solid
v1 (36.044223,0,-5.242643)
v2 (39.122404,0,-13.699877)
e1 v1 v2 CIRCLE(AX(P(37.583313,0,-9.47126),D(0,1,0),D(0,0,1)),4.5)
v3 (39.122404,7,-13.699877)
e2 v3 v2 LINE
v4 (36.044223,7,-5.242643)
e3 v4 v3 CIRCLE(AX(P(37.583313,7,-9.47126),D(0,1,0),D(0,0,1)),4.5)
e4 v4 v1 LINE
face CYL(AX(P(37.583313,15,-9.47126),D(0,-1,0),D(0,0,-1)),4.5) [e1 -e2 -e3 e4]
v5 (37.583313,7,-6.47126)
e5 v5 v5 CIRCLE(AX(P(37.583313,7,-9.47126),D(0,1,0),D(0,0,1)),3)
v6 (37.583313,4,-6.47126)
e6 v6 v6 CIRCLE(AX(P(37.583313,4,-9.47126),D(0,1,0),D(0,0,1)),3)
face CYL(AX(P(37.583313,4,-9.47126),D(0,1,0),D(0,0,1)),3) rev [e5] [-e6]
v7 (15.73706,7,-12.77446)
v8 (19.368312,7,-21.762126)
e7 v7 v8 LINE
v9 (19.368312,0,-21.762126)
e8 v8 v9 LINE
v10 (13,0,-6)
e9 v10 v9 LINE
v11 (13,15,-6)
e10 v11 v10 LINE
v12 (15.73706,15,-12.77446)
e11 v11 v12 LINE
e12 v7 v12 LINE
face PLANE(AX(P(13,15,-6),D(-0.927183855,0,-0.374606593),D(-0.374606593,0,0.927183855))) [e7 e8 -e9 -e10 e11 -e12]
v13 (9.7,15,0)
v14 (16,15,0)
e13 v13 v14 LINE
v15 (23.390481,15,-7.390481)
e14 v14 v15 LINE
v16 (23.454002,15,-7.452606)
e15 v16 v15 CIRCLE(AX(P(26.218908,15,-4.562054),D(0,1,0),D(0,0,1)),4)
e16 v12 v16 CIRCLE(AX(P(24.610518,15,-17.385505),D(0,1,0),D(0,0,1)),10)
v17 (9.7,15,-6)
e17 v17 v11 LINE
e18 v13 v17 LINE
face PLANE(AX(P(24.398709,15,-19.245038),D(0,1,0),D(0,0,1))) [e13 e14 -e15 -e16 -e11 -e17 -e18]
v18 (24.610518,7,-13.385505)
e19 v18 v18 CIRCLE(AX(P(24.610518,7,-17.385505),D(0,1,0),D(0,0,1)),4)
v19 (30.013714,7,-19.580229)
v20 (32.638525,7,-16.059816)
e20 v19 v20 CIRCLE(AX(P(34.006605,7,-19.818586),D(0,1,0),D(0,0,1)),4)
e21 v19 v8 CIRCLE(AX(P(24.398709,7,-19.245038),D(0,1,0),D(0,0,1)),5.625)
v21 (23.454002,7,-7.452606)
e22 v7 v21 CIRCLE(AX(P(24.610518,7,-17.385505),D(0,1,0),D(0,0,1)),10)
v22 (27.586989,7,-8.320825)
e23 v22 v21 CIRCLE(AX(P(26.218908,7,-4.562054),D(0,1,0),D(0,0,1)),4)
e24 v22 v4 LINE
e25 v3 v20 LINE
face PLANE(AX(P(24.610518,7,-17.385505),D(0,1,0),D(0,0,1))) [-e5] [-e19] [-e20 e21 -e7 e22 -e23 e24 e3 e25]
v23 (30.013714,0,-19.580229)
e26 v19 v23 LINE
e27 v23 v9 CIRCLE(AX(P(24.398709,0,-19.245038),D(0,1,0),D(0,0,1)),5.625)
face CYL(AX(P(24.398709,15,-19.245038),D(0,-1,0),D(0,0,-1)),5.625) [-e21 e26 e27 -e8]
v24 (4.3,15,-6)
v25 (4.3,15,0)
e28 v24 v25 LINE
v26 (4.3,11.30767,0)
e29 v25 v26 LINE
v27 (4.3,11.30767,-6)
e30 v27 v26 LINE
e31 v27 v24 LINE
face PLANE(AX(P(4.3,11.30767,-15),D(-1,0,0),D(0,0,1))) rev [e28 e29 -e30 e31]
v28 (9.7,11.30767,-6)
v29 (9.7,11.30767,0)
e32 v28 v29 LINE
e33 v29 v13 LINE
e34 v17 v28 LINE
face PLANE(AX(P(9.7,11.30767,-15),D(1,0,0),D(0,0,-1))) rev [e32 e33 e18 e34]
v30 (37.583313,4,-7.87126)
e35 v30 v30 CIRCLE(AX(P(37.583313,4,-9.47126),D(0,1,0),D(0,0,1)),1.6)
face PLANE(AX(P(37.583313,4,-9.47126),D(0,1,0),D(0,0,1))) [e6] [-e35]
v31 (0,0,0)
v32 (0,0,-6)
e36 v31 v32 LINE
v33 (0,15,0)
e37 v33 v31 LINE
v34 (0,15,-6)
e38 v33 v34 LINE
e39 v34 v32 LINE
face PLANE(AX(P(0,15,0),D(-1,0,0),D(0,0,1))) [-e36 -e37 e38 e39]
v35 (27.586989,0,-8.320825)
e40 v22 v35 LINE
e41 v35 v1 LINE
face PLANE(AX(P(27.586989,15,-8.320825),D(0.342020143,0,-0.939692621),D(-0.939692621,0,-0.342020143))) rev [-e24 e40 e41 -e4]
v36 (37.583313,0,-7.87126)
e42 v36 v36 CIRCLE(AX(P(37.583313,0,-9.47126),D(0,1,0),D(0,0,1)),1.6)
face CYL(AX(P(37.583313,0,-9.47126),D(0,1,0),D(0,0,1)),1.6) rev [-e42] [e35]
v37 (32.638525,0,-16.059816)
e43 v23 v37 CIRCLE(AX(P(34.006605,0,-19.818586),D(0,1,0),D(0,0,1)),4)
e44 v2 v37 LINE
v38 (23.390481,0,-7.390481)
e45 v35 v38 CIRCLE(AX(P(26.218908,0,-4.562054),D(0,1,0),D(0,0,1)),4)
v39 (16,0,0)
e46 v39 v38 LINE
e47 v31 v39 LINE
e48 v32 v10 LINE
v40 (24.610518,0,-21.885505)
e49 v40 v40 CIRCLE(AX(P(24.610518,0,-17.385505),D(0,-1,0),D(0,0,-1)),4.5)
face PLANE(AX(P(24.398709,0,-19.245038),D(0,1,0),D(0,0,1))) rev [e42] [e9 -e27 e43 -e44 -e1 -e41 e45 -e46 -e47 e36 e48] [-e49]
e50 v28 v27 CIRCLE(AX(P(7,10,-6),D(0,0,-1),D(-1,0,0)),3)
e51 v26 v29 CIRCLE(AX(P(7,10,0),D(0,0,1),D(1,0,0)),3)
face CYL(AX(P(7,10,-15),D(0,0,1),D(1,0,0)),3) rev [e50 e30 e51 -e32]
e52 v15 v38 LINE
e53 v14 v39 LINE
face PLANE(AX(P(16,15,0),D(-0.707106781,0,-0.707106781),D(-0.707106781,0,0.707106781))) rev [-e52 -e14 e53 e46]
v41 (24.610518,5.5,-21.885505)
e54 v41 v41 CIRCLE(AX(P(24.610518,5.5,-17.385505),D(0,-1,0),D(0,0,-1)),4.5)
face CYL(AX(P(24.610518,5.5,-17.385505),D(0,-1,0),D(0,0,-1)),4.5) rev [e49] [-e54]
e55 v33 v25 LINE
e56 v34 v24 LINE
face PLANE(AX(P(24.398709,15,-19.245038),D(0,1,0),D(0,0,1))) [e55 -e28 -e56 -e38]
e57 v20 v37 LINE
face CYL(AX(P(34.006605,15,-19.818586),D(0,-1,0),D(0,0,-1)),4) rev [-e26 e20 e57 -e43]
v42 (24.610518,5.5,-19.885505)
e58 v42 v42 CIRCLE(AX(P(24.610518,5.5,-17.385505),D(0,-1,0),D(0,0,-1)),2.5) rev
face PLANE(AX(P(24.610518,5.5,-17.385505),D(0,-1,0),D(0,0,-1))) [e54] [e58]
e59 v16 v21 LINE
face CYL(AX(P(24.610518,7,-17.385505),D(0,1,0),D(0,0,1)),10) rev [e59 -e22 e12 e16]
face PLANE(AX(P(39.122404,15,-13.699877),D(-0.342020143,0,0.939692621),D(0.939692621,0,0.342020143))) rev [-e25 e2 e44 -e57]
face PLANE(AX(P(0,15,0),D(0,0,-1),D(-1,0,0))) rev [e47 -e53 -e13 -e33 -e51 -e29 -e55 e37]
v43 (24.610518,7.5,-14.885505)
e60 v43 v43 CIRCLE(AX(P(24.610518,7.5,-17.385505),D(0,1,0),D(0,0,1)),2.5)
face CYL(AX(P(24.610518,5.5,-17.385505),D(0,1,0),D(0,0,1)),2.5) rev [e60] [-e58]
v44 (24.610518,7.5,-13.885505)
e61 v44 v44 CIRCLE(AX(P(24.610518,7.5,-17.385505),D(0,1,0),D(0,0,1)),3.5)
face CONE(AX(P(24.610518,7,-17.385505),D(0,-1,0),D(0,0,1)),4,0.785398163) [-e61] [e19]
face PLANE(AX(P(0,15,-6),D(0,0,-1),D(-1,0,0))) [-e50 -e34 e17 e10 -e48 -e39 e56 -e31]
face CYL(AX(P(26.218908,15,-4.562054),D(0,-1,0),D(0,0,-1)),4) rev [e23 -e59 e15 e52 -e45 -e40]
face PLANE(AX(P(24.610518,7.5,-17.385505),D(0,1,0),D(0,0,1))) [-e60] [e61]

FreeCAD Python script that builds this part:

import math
import FreeCAD as App
import Part
import Sketcher
Q = App.Units.Quantity

doc = App.newDocument("Part")
body = doc.addObject("PartDesign::Body", "Body")

# Sketch on XZ plane
sketch1 = body.newObject("Sketcher::SketchObject", "Sketch")
sketch1.AttachmentSupport = (doc.getObject("XZ_Plane"), [""])
sketch1.MapMode = "FlatFace"
sketch1.addGeometry([
    Part.LineSegment(App.Vector(0, 0, 0), App.Vector(16, 0, 0)),  # 0
    Part.LineSegment(App.Vector(16, 0, 0), App.Vector(23.4, -7.4, 0)),  # 1
    Part.ArcOfCircle(Part.Circle(App.Vector(26.2, -4.6, 0), App.Vector(0, 0, 1), 4), math.radians(-135), math.radians(-70)),  # 2
    Part.LineSegment(App.Vector(27.6, -8.3, 0), App.Vector(36, -5.2, 0)),  # 3
    Part.ArcOfCircle(Part.Circle(App.Vector(37.6, -9.5, 0), App.Vector(0, 0, 1), 4.5), math.radians(-70), math.radians(110)),  # 4
    Part.LineSegment(App.Vector(39.1, -13.7, 0), App.Vector(32.6, -16.1, 0)),  # 5
    Part.ArcOfCircle(Part.Circle(App.Vector(34, -19.8, 0), App.Vector(0, 0, 1), 4), math.radians(110), math.radians(177)),  # 6
    Part.ArcOfCircle(Part.Circle(App.Vector(24.4, -19.2, 0), App.Vector(0, 0, 1), 5.6), math.radians(-153), math.radians(-3)),  # 7
    Part.LineSegment(App.Vector(19.4, -21.8, 0), App.Vector(13, -6, 0)),  # 8
    Part.LineSegment(App.Vector(13, -6, 0), App.Vector(0, -6, 0)),  # 9
    Part.LineSegment(App.Vector(0, -6, 0), App.Vector(0, 0, 0)),  # 10
], False)
sketch1.addConstraint([
    Sketcher.Constraint("Coincident", 0, 2, 1, 1),
    Sketcher.Constraint("Tangent", 1, 2, 2, 1),
    Sketcher.Constraint("Tangent", 2, 2, 3, 1),
    Sketcher.Constraint("Tangent", 3, 2, 4, 2),
    Sketcher.Constraint("Tangent", 4, 1, 5, 1),
    Sketcher.Constraint("Tangent", 5, 2, 6, 1),
    Sketcher.Constraint("Tangent", 6, 2, 7, 2),
    Sketcher.Constraint("Coincident", 7, 1, 8, 1),
    Sketcher.Constraint("Coincident", 8, 2, 9, 1),
    Sketcher.Constraint("Coincident", 9, 2, 10, 1),
    Sketcher.Constraint("Coincident", 10, 2, 0, 1),
    Sketcher.Constraint("Horizontal", 0),
    Sketcher.Constraint("Horizontal", 9),
    Sketcher.Constraint("Vertical", 10),
    Sketcher.Constraint("Coincident", 10, 2, -1, 1),
    Sketcher.Constraint("Equal", 2, 6),
    Sketcher.Constraint("Parallel", 3, 5),
    Sketcher.Constraint("Radius", 2, Q("4 mm")),
    Sketcher.Constraint("Radius", 4, Q("4.5 mm")),
    Sketcher.Constraint("DistanceX", 0, 1, 0, 2, Q("16 mm")),
    Sketcher.Constraint("DistanceX", 9, 2, 9, 1, Q("13 mm")),
    Sketcher.Constraint("DistanceY", 10, 1, 10, 2, Q("6 mm")),
    Sketcher.Constraint("Angle", 1, Q("-45 deg")),
    Sketcher.Constraint("Angle", 3, Q("20 deg")),
    Sketcher.Constraint("Angle", 8, Q("112 deg")),
    Sketcher.Constraint("Distance", 3, Q("9 mm")),
    Sketcher.Constraint("Distance", 8, Q("17 mm")),
    Sketcher.Constraint("Radius", 7, Q("5.625 mm")),
    Sketcher.Constraint("Distance", 5, Q("6.9 mm")),
    Sketcher.Constraint("DistanceX", 7, 3, 2, 3, Q("1.820199 mm")),
])
pad1 = body.newObject("PartDesign::Pad", "Pad")
pad1.Profile = sketch1
pad1.Length = 15
pad1.Reversed = True

# Sketch on XZ plane
sketch2 = body.newObject("Sketcher::SketchObject", "Sketch001")
sketch2.AttachmentSupport = (doc.getObject("XZ_Plane"), [""])
sketch2.MapMode = "FlatFace"
sketch2.AttachmentOffset = App.Placement(App.Vector(0, 0, -15), App.Rotation())
sketch2.addGeometry([
    Part.LineSegment(App.Vector(28, -8, 0), App.Vector(40, -2, 0)),
    Part.LineSegment(App.Vector(40, -2, 0), App.Vector(45, -13, 0)),
    Part.LineSegment(App.Vector(45, -13, 0), App.Vector(35, -18, 0)),
    Part.ArcOfCircle(Part.Circle(App.Vector(25, -17, 0), App.Vector(0, 0, 1), 10), math.radians(73), math.radians(356)),
], False)
sketch2.addConstraint([
    Sketcher.Constraint("Coincident", 0, 2, 1, 1),
    Sketcher.Constraint("Coincident", 1, 2, 2, 1),
    Sketcher.Constraint("Coincident", 2, 2, 3, 2),
    Sketcher.Constraint("Coincident", 3, 1, 0, 1),
    Sketcher.Constraint("Perpendicular", 0, 1),
    Sketcher.Constraint("Perpendicular", 1, 2),
    Sketcher.Constraint("Radius", 3, Q("10 mm")),
    Sketcher.Constraint("Distance", 2, Q("11.670922 mm")),
    Sketcher.Constraint("DistanceX", -1, 1, 3, 3, Q("24.610518 mm")),
    Sketcher.Constraint("DistanceX", -1, 1, 1, 2, Q("45.039561 mm")),
    Sketcher.Constraint("DistanceY", 1, 2, -1, 1, Q("12.855889 mm")),
    Sketcher.Constraint("DistanceY", 2, 2, -1, 1, Q("18.050442 mm")),
    Sketcher.Constraint("DistanceY", 3, 3, 0, 2, Q("15.54761 mm")),
])
pocket1 = body.newObject("PartDesign::Pocket", "Pocket")
pocket1.Profile = sketch2
pocket1.Length = 8
pocket1.Reversed = True

# Sketch on XZ plane
sketch3 = body.newObject("Sketcher::SketchObject", "Sketch002")
sketch3.AttachmentSupport = (doc.getObject("XZ_Plane"), [""])
sketch3.MapMode = "FlatFace"
sketch3.AttachmentOffset = App.Placement(App.Vector(0, 0, -7), App.Rotation())
sketch3.addGeometry(Part.Circle(App.Vector(24.6, -17.4, 0), App.Vector(0, 0, 1), 4), False)
sketch3.addConstraint([
    Sketcher.Constraint("Diameter", 0, Q("8 mm")),
    Sketcher.Constraint("DistanceX", -1, 1, 0, 3, Q("24.610518 mm")),
    Sketcher.Constraint("DistanceY", 0, 3, -1, 1, Q("17.385505 mm")),
])
pad2 = body.newObject("PartDesign::Pad", "Pad001")
pad2.Profile = sketch3
pad2.Length = 0.5
pad2.Reversed = True
pad2.TaperAngle = -45

# Sketch on XZ plane
sketch4 = body.newObject("Sketcher::SketchObject", "Sketch003")
sketch4.AttachmentSupport = (doc.getObject("XZ_Plane"), [""])
sketch4.MapMode = "FlatFace"
sketch4.AttachmentOffset = App.Placement(App.Vector(0, 0, -7.5), App.Rotation())
sketch4.addGeometry(Part.Circle(App.Vector(24.6, -17.4, 0), App.Vector(0, 0, 1), 2.5), False)
sketch4.addConstraint([
    Sketcher.Constraint("Diameter", 0, Q("5 mm")),
    Sketcher.Constraint("DistanceX", -1, 1, 0, 3, Q("24.610518 mm")),
    Sketcher.Constraint("DistanceY", 0, 3, -1, 1, Q("17.385505 mm")),
])
pocket2 = body.newObject("PartDesign::Pocket", "Pocket001")
pocket2.Profile = sketch4
pocket2.Length = 2
pocket2.Reversed = True

# Sketch on XZ plane
sketch5 = body.newObject("Sketcher::SketchObject", "Sketch004")
sketch5.AttachmentSupport = (doc.getObject("XZ_Plane"), [""])
sketch5.MapMode = "FlatFace"
sketch5.addGeometry(Part.Circle(App.Vector(24.6, -17.4, 0), App.Vector(0, 0, 1), 4.5), False)
sketch5.addConstraint([
    Sketcher.Constraint("Diameter", 0, Q("9 mm")),
    Sketcher.Constraint("DistanceX", -1, 1, 0, 3, Q("24.610518 mm")),
    Sketcher.Constraint("DistanceY", 0, 3, -1, 1, Q("17.385505 mm")),
])
pocket3 = body.newObject("PartDesign::Pocket", "Pocket002")
pocket3.Profile = sketch5
pocket3.Length = 5.5

# Sketch on XY plane
sketch6 = body.newObject("Sketcher::SketchObject", "Sketch005")
sketch6.AttachmentSupport = (doc.getObject("XY_Plane"), [""])
sketch6.MapMode = "FlatFace"
sketch6.addGeometry([
    Part.LineSegment(App.Vector(4.3, 15, 0), App.Vector(4.3, 11.3, 0)),
    Part.ArcOfCircle(Part.Circle(App.Vector(7, 10, 0), App.Vector(0, 0, 1), 3), math.radians(154), math.radians(386)),
    Part.LineSegment(App.Vector(9.7, 11.3, 0), App.Vector(9.7, 15, 0)),
    Part.LineSegment(App.Vector(9.7, 15, 0), App.Vector(4.3, 15, 0)),
], False)
sketch6.addConstraint([
    Sketcher.Constraint("Coincident", 0, 2, 1, 1),
    Sketcher.Constraint("Coincident", 1, 2, 2, 1),
    Sketcher.Constraint("Coincident", 2, 2, 3, 1),
    Sketcher.Constraint("Coincident", 3, 2, 0, 1),
    Sketcher.Constraint("Vertical", 0),
    Sketcher.Constraint("Vertical", 2),
    Sketcher.Constraint("Horizontal", 3),
    Sketcher.Constraint("Horizontal", 0, 2, 1, 2),
    Sketcher.Constraint("Radius", 1, Q("3 mm")),
    Sketcher.Constraint("DistanceX", 3, 2, 3, 1, Q("5.4 mm")),
    Sketcher.Constraint("DistanceX", -1, 1, 1, 3, Q("7 mm")),
    Sketcher.Constraint("DistanceY", -1, 1, 1, 3, Q("10 mm")),
    Sketcher.Constraint("DistanceY", -1, 1, 2, 2, Q("15 mm")),
])
pocket4 = body.newObject("PartDesign::Pocket", "Pocket003")
pocket4.Profile = sketch6
pocket4.Length = 15

# Sketch on XZ plane
sketch7 = body.newObject("Sketcher::SketchObject", "Sketch006")
sketch7.AttachmentSupport = (doc.getObject("XZ_Plane"), [""])
sketch7.MapMode = "FlatFace"
sketch7.AttachmentOffset = App.Placement(App.Vector(0, 0, -7), App.Rotation())
sketch7.addGeometry(Part.Circle(App.Vector(37.6, -9.5, 0), App.Vector(0, 0, 1), 3), False)
sketch7.addConstraint([
    Sketcher.Constraint("Diameter", 0, Q("6 mm")),
    Sketcher.Constraint("DistanceY", 0, 3, -1, 1, Q("9.47126 mm")),
    Sketcher.Constraint("DistanceX", -1, 1, 0, 3, Q("37.583313 mm")),
])
pocket5 = body.newObject("PartDesign::Pocket", "Pocket004")
pocket5.Profile = sketch7
pocket5.Length = 3
pocket5.Reversed = True

# Sketch on XZ plane
sketch8 = body.newObject("Sketcher::SketchObject", "Sketch007")
sketch8.AttachmentSupport = (doc.getObject("XZ_Plane"), [""])
sketch8.MapMode = "FlatFace"
sketch8.AttachmentOffset = App.Placement(App.Vector(0, 0, -4), App.Rotation())
sketch8.addGeometry(Part.Circle(App.Vector(37.6, -9.5, 0), App.Vector(0, 0, 1), 1.6), False)
sketch8.addConstraint([
    Sketcher.Constraint("Diameter", 0, Q("3.2 mm")),
    Sketcher.Constraint("DistanceY", 0, 3, -1, 1, Q("9.47126 mm")),
    Sketcher.Constraint("DistanceX", -1, 1, 0, 3, Q("37.583313 mm")),
])
pocket6 = body.newObject("PartDesign::Pocket", "Pocket005")
pocket6.Profile = sketch8
pocket6.Length = 4
pocket6.Reversed = True

doc.recompute()
